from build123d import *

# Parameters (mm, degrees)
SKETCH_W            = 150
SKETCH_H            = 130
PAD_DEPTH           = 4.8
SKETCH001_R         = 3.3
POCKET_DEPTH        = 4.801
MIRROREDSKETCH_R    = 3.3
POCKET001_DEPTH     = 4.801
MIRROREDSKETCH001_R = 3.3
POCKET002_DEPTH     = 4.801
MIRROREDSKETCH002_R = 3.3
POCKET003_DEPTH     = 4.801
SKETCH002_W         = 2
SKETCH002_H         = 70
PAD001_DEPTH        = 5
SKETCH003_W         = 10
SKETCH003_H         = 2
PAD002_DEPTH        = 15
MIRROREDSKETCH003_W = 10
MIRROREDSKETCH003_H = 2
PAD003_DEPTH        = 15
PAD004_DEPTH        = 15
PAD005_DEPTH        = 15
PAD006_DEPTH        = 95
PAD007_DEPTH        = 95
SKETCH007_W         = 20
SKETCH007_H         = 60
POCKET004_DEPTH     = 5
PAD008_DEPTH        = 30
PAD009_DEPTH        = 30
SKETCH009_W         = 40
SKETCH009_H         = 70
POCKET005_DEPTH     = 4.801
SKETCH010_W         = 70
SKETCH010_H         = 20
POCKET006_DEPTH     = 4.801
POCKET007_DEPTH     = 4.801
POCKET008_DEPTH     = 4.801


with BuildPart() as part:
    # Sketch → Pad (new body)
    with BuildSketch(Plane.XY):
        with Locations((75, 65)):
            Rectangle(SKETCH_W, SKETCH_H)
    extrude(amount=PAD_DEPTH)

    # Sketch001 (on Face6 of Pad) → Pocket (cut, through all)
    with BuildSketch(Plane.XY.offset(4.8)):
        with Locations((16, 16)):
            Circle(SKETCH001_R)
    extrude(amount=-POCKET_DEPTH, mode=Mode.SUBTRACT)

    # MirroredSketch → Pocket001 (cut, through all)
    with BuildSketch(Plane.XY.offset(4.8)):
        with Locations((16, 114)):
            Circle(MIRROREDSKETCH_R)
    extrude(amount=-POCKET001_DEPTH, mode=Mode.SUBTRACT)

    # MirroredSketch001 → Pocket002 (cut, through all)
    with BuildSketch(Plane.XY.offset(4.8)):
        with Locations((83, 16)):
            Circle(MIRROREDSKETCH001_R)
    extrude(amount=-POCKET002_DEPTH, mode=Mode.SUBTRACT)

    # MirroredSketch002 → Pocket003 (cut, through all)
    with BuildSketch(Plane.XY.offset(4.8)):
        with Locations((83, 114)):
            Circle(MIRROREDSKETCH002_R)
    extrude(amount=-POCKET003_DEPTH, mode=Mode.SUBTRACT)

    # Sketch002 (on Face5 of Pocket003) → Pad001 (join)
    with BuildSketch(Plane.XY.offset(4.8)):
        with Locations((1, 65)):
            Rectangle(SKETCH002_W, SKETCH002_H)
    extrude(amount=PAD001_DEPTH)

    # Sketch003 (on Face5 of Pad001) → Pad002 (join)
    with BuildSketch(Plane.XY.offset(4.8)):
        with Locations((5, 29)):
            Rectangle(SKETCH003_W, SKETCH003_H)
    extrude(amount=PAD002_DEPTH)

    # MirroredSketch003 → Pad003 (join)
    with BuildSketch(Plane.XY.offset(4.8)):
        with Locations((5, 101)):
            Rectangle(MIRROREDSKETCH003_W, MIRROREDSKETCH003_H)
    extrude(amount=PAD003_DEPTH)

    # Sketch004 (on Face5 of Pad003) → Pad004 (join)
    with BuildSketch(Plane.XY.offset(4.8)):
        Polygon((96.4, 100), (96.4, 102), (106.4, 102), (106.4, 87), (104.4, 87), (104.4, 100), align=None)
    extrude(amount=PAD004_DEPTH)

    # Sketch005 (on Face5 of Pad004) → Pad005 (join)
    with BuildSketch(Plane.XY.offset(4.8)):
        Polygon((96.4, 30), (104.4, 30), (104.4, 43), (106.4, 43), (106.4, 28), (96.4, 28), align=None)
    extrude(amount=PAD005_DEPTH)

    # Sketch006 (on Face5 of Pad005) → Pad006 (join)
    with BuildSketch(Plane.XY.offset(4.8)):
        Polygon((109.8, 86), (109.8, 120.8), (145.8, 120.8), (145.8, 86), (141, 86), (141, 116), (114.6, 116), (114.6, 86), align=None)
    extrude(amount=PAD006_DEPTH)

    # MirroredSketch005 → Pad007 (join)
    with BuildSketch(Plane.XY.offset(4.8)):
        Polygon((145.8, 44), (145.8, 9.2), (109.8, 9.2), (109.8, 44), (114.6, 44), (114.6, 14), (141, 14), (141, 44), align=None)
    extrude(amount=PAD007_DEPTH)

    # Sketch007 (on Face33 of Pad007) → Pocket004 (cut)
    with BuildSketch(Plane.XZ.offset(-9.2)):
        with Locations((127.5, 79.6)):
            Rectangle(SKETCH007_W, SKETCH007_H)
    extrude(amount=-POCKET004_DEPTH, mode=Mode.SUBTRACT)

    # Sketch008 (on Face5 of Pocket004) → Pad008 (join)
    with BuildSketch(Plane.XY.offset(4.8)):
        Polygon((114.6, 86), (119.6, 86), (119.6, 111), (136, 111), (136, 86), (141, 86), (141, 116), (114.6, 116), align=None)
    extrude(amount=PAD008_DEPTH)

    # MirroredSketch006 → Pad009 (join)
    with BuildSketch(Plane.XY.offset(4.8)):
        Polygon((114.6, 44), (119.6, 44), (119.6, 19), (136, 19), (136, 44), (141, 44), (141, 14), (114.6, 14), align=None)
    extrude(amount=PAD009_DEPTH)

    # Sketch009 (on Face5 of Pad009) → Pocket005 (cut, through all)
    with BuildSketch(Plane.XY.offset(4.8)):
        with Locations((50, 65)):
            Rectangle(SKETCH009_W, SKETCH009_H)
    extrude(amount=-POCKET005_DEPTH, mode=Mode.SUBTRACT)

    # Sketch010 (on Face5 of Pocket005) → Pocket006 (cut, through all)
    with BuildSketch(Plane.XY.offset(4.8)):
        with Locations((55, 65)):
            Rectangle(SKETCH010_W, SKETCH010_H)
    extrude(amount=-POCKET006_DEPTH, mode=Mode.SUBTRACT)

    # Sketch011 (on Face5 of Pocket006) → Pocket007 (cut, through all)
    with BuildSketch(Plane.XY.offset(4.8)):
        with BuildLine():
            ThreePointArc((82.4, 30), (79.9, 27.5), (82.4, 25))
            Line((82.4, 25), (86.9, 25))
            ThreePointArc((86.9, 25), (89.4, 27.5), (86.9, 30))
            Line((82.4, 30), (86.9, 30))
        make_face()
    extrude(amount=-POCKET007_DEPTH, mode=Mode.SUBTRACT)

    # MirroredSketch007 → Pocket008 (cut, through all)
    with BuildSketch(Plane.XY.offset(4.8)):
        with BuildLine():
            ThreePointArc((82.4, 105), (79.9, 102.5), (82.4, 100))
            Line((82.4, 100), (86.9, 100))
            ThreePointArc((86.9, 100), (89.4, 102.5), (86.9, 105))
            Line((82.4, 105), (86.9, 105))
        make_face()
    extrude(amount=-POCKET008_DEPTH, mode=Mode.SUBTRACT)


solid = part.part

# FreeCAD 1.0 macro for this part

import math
import FreeCAD as App
import Part
import Sketcher
from FreeCAD import Vector
Q = App.Units.Quantity

doc = App.newDocument("Part")
body = doc.addObject("PartDesign::Body", "Body")

sketch1 = doc.addObject("Sketcher::SketchObject", "Sketch")
body.addObject(sketch1)
sketch1.AttachmentSupport = (doc.XY_Plane, [""])
sketch1.MapMode = "FlatFace"
sketch1.addGeometry(Part.LineSegment(Vector(0, 130, 0), Vector(0, 0, 0)), False)
sketch1.addGeometry(Part.LineSegment(Vector(0, 0, 0), Vector(150, 0, 0)), False)
sketch1.addGeometry(Part.LineSegment(Vector(150, 0, 0), Vector(150, 130, 0)), False)
sketch1.addGeometry(Part.LineSegment(Vector(150, 130, 0), Vector(0, 130, 0)), False)
sketch1.addConstraint(Sketcher.Constraint("Coincident", 0, 2, 1, 1))
sketch1.addConstraint(Sketcher.Constraint("Coincident", 1, 2, 2, 1))
sketch1.addConstraint(Sketcher.Constraint("Coincident", 2, 2, 3, 1))
sketch1.addConstraint(Sketcher.Constraint("Coincident", 3, 2, 0, 1))
sketch1.addConstraint(Sketcher.Constraint("Vertical", 0))
sketch1.addConstraint(Sketcher.Constraint("Horizontal", 1))
sketch1.addConstraint(Sketcher.Constraint("Vertical", 2))
sketch1.addConstraint(Sketcher.Constraint("Horizontal", 3))
sketch1.addConstraint(Sketcher.Constraint("Coincident", 0, 2, -1, 1))
sketch1.addConstraint(Sketcher.Constraint("DistanceX", 1, 1, 1, 2, Q("150 mm")))
sketch1.addConstraint(Sketcher.Constraint("DistanceY", 0, 2, 0, 1, Q("130 mm")))
pad1 = doc.addObject("PartDesign::Pad", "Pad")
body.addObject(pad1)
pad1.Profile = sketch1
pad1.Length = 4.8

sketch2 = doc.addObject("Sketcher::SketchObject", "Sketch001")
body.addObject(sketch2)
sketch2.AttachmentSupport = (doc.XY_Plane, [""])
sketch2.MapMode = "FlatFace"
sketch2.AttachmentOffset = App.Placement(Vector(0, 0, 4.8), App.Rotation())
sketch2.addGeometry(Part.Circle(Vector(16, 16, 0), Vector(0, 0, 1), 3.3), False)
sketch2.addConstraint(Sketcher.Constraint("Diameter", 0, Q("6.6 mm")))
sketch2.addConstraint(Sketcher.Constraint("DistanceX", -1, 1, 0, 3, Q("16 mm")))
sketch2.addConstraint(Sketcher.Constraint("DistanceY", -1, 1, 0, 3, Q("16 mm")))
pocket1 = doc.addObject("PartDesign::Pocket", "Pocket")
body.addObject(pocket1)
pocket1.Profile = sketch2
pocket1.Type = "ThroughAll"

sketch3 = doc.addObject("Sketcher::SketchObject", "Sketch002")
body.addObject(sketch3)
sketch3.AttachmentSupport = (doc.XY_Plane, [""])
sketch3.MapMode = "FlatFace"
sketch3.AttachmentOffset = App.Placement(Vector(0, 0, 4.8), App.Rotation())
sketch3.addGeometry(Part.Circle(Vector(16, 114, 0), Vector(0, 0, 1), 3.3), False)
sketch3.addConstraint(Sketcher.Constraint("Diameter", 0, Q("6.6 mm")))
sketch3.addConstraint(Sketcher.Constraint("DistanceX", -1, 1, 0, 3, Q("16 mm")))
sketch3.addConstraint(Sketcher.Constraint("DistanceY", -1, 1, 0, 3, Q("114 mm")))
pocket2 = doc.addObject("PartDesign::Pocket", "Pocket001")
body.addObject(pocket2)
pocket2.Profile = sketch3
pocket2.Type = "ThroughAll"

sketch4 = doc.addObject("Sketcher::SketchObject", "Sketch003")
body.addObject(sketch4)
sketch4.AttachmentSupport = (doc.XY_Plane, [""])
sketch4.MapMode = "FlatFace"
sketch4.AttachmentOffset = App.Placement(Vector(0, 0, 4.8), App.Rotation())
sketch4.addGeometry(Part.Circle(Vector(83, 16, 0), Vector(0, 0, 1), 3.3), False)
sketch4.addConstraint(Sketcher.Constraint("Diameter", 0, Q("6.6 mm")))
sketch4.addConstraint(Sketcher.Constraint("DistanceX", -1, 1, 0, 3, Q("83 mm")))
sketch4.addConstraint(Sketcher.Constraint("DistanceY", -1, 1, 0, 3, Q("16 mm")))
pocket3 = doc.addObject("PartDesign::Pocket", "Pocket002")
body.addObject(pocket3)
pocket3.Profile = sketch4
pocket3.Type = "ThroughAll"

sketch5 = doc.addObject("Sketcher::SketchObject", "Sketch004")
body.addObject(sketch5)
sketch5.AttachmentSupport = (doc.XY_Plane, [""])
sketch5.MapMode = "FlatFace"
sketch5.AttachmentOffset = App.Placement(Vector(0, 0, 4.8), App.Rotation())
sketch5.addGeometry(Part.Circle(Vector(83, 114, 0), Vector(0, 0, 1), 3.3), False)
sketch5.addConstraint(Sketcher.Constraint("Diameter", 0, Q("6.6 mm")))
sketch5.addConstraint(Sketcher.Constraint("DistanceX", -1, 1, 0, 3, Q("83 mm")))
sketch5.addConstraint(Sketcher.Constraint("DistanceY", -1, 1, 0, 3, Q("114 mm")))
pocket4 = doc.addObject("PartDesign::Pocket", "Pocket003")
body.addObject(pocket4)
pocket4.Profile = sketch5
pocket4.Type = "ThroughAll"

sketch6 = doc.addObject("Sketcher::SketchObject", "Sketch005")
body.addObject(sketch6)
sketch6.AttachmentSupport = (doc.XY_Plane, [""])
sketch6.MapMode = "FlatFace"
sketch6.AttachmentOffset = App.Placement(Vector(0, 0, 4.8), App.Rotation())
sketch6.addGeometry(Part.LineSegment(Vector(0, 100, 0), Vector(0, 30, 0)), False)
sketch6.addGeometry(Part.LineSegment(Vector(0, 30, 0), Vector(2, 30, 0)), False)
sketch6.addGeometry(Part.LineSegment(Vector(2, 30, 0), Vector(2, 100, 0)), False)
sketch6.addGeometry(Part.LineSegment(Vector(2, 100, 0), Vector(0, 100, 0)), False)
sketch6.addConstraint(Sketcher.Constraint("Coincident", 0, 2, 1, 1))
sketch6.addConstraint(Sketcher.Constraint("Coincident", 1, 2, 2, 1))
sketch6.addConstraint(Sketcher.Constraint("Coincident", 2, 2, 3, 1))
sketch6.addConstraint(Sketcher.Constraint("Coincident", 3, 2, 0, 1))
sketch6.addConstraint(Sketcher.Constraint("Vertical", 0))
sketch6.addConstraint(Sketcher.Constraint("Horizontal", 1))
sketch6.addConstraint(Sketcher.Constraint("Vertical", 2))
sketch6.addConstraint(Sketcher.Constraint("Horizontal", 3))
sketch6.addConstraint(Sketcher.Constraint("PointOnObject", 0, 2, -2))
sketch6.addConstraint(Sketcher.Constraint("DistanceX", 1, 1, 1, 2, Q("2 mm")))
sketch6.addConstraint(Sketcher.Constraint("DistanceY", 0, 2, 0, 1, Q("70 mm")))
sketch6.addConstraint(Sketcher.Constraint("DistanceY", -1, 1, 0, 2, Q("30 mm")))
pad2 = doc.addObject("PartDesign::Pad", "Pad001")
body.addObject(pad2)
pad2.Profile = sketch6
pad2.Length = 5

sketch7 = doc.addObject("Sketcher::SketchObject", "Sketch006")
body.addObject(sketch7)
sketch7.AttachmentSupport = (doc.XY_Plane, [""])
sketch7.MapMode = "FlatFace"
sketch7.AttachmentOffset = App.Placement(Vector(0, 0, 4.8), App.Rotation())
sketch7.addGeometry(Part.LineSegment(Vector(0, 30, 0), Vector(0, 28, 0)), False)
sketch7.addGeometry(Part.LineSegment(Vector(0, 28, 0), Vector(10, 28, 0)), False)
sketch7.addGeometry(Part.LineSegment(Vector(10, 28, 0), Vector(10, 30, 0)), False)
sketch7.addGeometry(Part.LineSegment(Vector(10, 30, 0), Vector(0, 30, 0)), False)
sketch7.addConstraint(Sketcher.Constraint("Coincident", 0, 2, 1, 1))
sketch7.addConstraint(Sketcher.Constraint("Coincident", 1, 2, 2, 1))
sketch7.addConstraint(Sketcher.Constraint("Coincident", 2, 2, 3, 1))
sketch7.addConstraint(Sketcher.Constraint("Coincident", 3, 2, 0, 1))
sketch7.addConstraint(Sketcher.Constraint("Vertical", 0))
sketch7.addConstraint(Sketcher.Constraint("Horizontal", 1))
sketch7.addConstraint(Sketcher.Constraint("Vertical", 2))
sketch7.addConstraint(Sketcher.Constraint("Horizontal", 3))
sketch7.addConstraint(Sketcher.Constraint("PointOnObject", 0, 2, -2))
sketch7.addConstraint(Sketcher.Constraint("DistanceX", 1, 1, 1, 2, Q("10 mm")))
sketch7.addConstraint(Sketcher.Constraint("DistanceY", 0, 2, 0, 1, Q("2 mm")))
sketch7.addConstraint(Sketcher.Constraint("DistanceY", -1, 1, 0, 2, Q("28 mm")))
pad3 = doc.addObject("PartDesign::Pad", "Pad002")
body.addObject(pad3)
pad3.Profile = sketch7
pad3.Length = 15

sketch8 = doc.addObject("Sketcher::SketchObject", "Sketch007")
body.addObject(sketch8)
sketch8.AttachmentSupport = (doc.XY_Plane, [""])
sketch8.MapMode = "FlatFace"
sketch8.AttachmentOffset = App.Placement(Vector(0, 0, 4.8), App.Rotation())
sketch8.addGeometry(Part.LineSegment(Vector(0, 102, 0), Vector(0, 100, 0)), False)
sketch8.addGeometry(Part.LineSegment(Vector(0, 100, 0), Vector(10, 100, 0)), False)
sketch8.addGeometry(Part.LineSegment(Vector(10, 100, 0), Vector(10, 102, 0)), False)
sketch8.addGeometry(Part.LineSegment(Vector(10, 102, 0), Vector(0, 102, 0)), False)
sketch8.addConstraint(Sketcher.Constraint("Coincident", 0, 2, 1, 1))
sketch8.addConstraint(Sketcher.Constraint("Coincident", 1, 2, 2, 1))
sketch8.addConstraint(Sketcher.Constraint("Coincident", 2, 2, 3, 1))
sketch8.addConstraint(Sketcher.Constraint("Coincident", 3, 2, 0, 1))
sketch8.addConstraint(Sketcher.Constraint("Vertical", 0))
sketch8.addConstraint(Sketcher.Constraint("Horizontal", 1))
sketch8.addConstraint(Sketcher.Constraint("Vertical", 2))
sketch8.addConstraint(Sketcher.Constraint("Horizontal", 3))
sketch8.addConstraint(Sketcher.Constraint("PointOnObject", 0, 2, -2))
sketch8.addConstraint(Sketcher.Constraint("DistanceX", 1, 1, 1, 2, Q("10 mm")))
sketch8.addConstraint(Sketcher.Constraint("DistanceY", 0, 2, 0, 1, Q("2 mm")))
sketch8.addConstraint(Sketcher.Constraint("DistanceY", -1, 1, 0, 2, Q("100 mm")))
pad4 = doc.addObject("PartDesign::Pad", "Pad003")
body.addObject(pad4)
pad4.Profile = sketch8
pad4.Length = 15

sketch9 = doc.addObject("Sketcher::SketchObject", "Sketch008")
body.addObject(sketch9)
sketch9.AttachmentSupport = (doc.XY_Plane, [""])
sketch9.MapMode = "FlatFace"
sketch9.AttachmentOffset = App.Placement(Vector(0, 0, 4.8), App.Rotation())
sketch9.addGeometry(Part.LineSegment(Vector(96.4, 102, 0), Vector(96.4, 100, 0)), False)
sketch9.addGeometry(Part.LineSegment(Vector(96.4, 100, 0), Vector(104.4, 100, 0)), False)
sketch9.addGeometry(Part.LineSegment(Vector(104.4, 100, 0), Vector(104.4, 87, 0)), False)
sketch9.addGeometry(Part.LineSegment(Vector(104.4, 87, 0), Vector(106.4, 87, 0)), False)
sketch9.addGeometry(Part.LineSegment(Vector(106.4, 87, 0), Vector(106.4, 102, 0)), False)
sketch9.addGeometry(Part.LineSegment(Vector(106.4, 102, 0), Vector(96.4, 102, 0)), False)
sketch9.addConstraint(Sketcher.Constraint("Coincident", 0, 2, 1, 1))
sketch9.addConstraint(Sketcher.Constraint("Coincident", 1, 2, 2, 1))
sketch9.addConstraint(Sketcher.Constraint("Coincident", 2, 2, 3, 1))
sketch9.addConstraint(Sketcher.Constraint("Coincident", 3, 2, 4, 1))
sketch9.addConstraint(Sketcher.Constraint("Coincident", 4, 2, 5, 1))
sketch9.addConstraint(Sketcher.Constraint("Coincident", 5, 2, 0, 1))
sketch9.addConstraint(Sketcher.Constraint("Vertical", 0))
sketch9.addConstraint(Sketcher.Constraint("Horizontal", 1))
sketch9.addConstraint(Sketcher.Constraint("Vertical", 2))
sketch9.addConstraint(Sketcher.Constraint("Horizontal", 3))
sketch9.addConstraint(Sketcher.Constraint("Vertical", 4))
sketch9.addConstraint(Sketcher.Constraint("Horizontal", 5))
sketch9.addConstraint(Sketcher.Constraint("Equal", 3, 0))
sketch9.addConstraint(Sketcher.Constraint("DistanceX", 1, 1, 1, 2, Q("8 mm")))
sketch9.addConstraint(Sketcher.Constraint("DistanceX", 3, 1, 3, 2, Q("2 mm")))
sketch9.addConstraint(Sketcher.Constraint("DistanceY", 2, 2, 2, 1, Q("13 mm")))
sketch9.addConstraint(Sketcher.Constraint("DistanceY", -1, 1, 0, 2, Q("100 mm")))
sketch9.addConstraint(Sketcher.Constraint("DistanceX", -1, 1, 0, 2, Q("96.4 mm")))
pad5 = doc.addObject("PartDesign::Pad", "Pad004")
body.addObject(pad5)
pad5.Profile = sketch9
pad5.Length = 15

sketch10 = doc.addObject("Sketcher::SketchObject", "Sketch009")
body.addObject(sketch10)
sketch10.AttachmentSupport = (doc.XY_Plane, [""])
sketch10.MapMode = "FlatFace"
sketch10.AttachmentOffset = App.Placement(Vector(0, 0, 4.8), App.Rotation())
sketch10.addGeometry(Part.LineSegment(Vector(104.4, 30, 0), Vector(96.4, 30, 0)), False)
sketch10.addGeometry(Part.LineSegment(Vector(96.4, 30, 0), Vector(96.4, 28, 0)), False)
sketch10.addGeometry(Part.LineSegment(Vector(96.4, 28, 0), Vector(106.4, 28, 0)), False)
sketch10.addGeometry(Part.LineSegment(Vector(106.4, 28, 0), Vector(106.4, 43, 0)), False)
sketch10.addGeometry(Part.LineSegment(Vector(106.4, 43, 0), Vector(104.4, 43, 0)), False)
sketch10.addGeometry(Part.LineSegment(Vector(104.4, 43, 0), Vector(104.4, 30, 0)), False)
sketch10.addConstraint(Sketcher.Constraint("Coincident", 0, 2, 1, 1))
sketch10.addConstraint(Sketcher.Constraint("Coincident", 1, 2, 2, 1))
sketch10.addConstraint(Sketcher.Constraint("Coincident", 2, 2, 3, 1))
sketch10.addConstraint(Sketcher.Constraint("Coincident", 3, 2, 4, 1))
sketch10.addConstraint(Sketcher.Constraint("Coincident", 4, 2, 5, 1))
sketch10.addConstraint(Sketcher.Constraint("Coincident", 5, 2, 0, 1))
sketch10.addConstraint(Sketcher.Constraint("Horizontal", 0))
sketch10.addConstraint(Sketcher.Constraint("Vertical", 1))
sketch10.addConstraint(Sketcher.Constraint("Horizontal", 2))
sketch10.addConstraint(Sketcher.Constraint("Vertical", 3))
sketch10.addConstraint(Sketcher.Constraint("Horizontal", 4))
sketch10.addConstraint(Sketcher.Constraint("Vertical", 5))
sketch10.addConstraint(Sketcher.Constraint("Equal", 4, 1))
sketch10.addConstraint(Sketcher.Constraint("DistanceX", 0, 2, 0, 1, Q("8 mm")))
sketch10.addConstraint(Sketcher.Constraint("DistanceX", 2, 1, 2, 2, Q("10 mm")))
sketch10.addConstraint(Sketcher.Constraint("DistanceY", 3, 1, 3, 2, Q("15 mm")))
sketch10.addConstraint(Sketcher.Constraint("DistanceY", -1, 1, 0, 2, Q("30 mm")))
sketch10.addConstraint(Sketcher.Constraint("DistanceX", -1, 1, 0, 2, Q("96.4 mm")))
pad6 = doc.addObject("PartDesign::Pad", "Pad005")
body.addObject(pad6)
pad6.Profile = sketch10
pad6.Length = 15

sketch11 = doc.addObject("Sketcher::SketchObject", "Sketch010")
body.addObject(sketch11)
sketch11.AttachmentSupport = (doc.XY_Plane, [""])
sketch11.MapMode = "FlatFace"
sketch11.AttachmentOffset = App.Placement(Vector(0, 0, 4.8), App.Rotation())
sketch11.addGeometry(Part.LineSegment(Vector(109.8, 120.8, 0), Vector(109.8, 86, 0)), False)
sketch11.addGeometry(Part.LineSegment(Vector(109.8, 86, 0), Vector(114.6, 86, 0)), False)
sketch11.addGeometry(Part.LineSegment(Vector(114.6, 86, 0), Vector(114.6, 116, 0)), False)
sketch11.addGeometry(Part.LineSegment(Vector(114.6, 116, 0), Vector(141, 116, 0)), False)
sketch11.addGeometry(Part.LineSegment(Vector(141, 116, 0), Vector(141, 86, 0)), False)
sketch11.addGeometry(Part.LineSegment(Vector(141, 86, 0), Vector(145.8, 86, 0)), False)
sketch11.addGeometry(Part.LineSegment(Vector(145.8, 86, 0), Vector(145.8, 120.8, 0)), False)
sketch11.addGeometry(Part.LineSegment(Vector(145.8, 120.8, 0), Vector(109.8, 120.8, 0)), False)
sketch11.addConstraint(Sketcher.Constraint("Coincident", 0, 2, 1, 1))
sketch11.addConstraint(Sketcher.Constraint("Coincident", 1, 2, 2, 1))
sketch11.addConstraint(Sketcher.Constraint("Coincident", 2, 2, 3, 1))
sketch11.addConstraint(Sketcher.Constraint("Coincident", 3, 2, 4, 1))
sketch11.addConstraint(Sketcher.Constraint("Coincident", 4, 2, 5, 1))
sketch11.addConstraint(Sketcher.Constraint("Coincident", 5, 2, 6, 1))
sketch11.addConstraint(Sketcher.Constraint("Coincident", 6, 2, 7, 1))
sketch11.addConstraint(Sketcher.Constraint("Coincident", 7, 2, 0, 1))
sketch11.addConstraint(Sketcher.Constraint("Vertical", 0))
sketch11.addConstraint(Sketcher.Constraint("Horizontal", 1))
sketch11.addConstraint(Sketcher.Constraint("Vertical", 2))
sketch11.addConstraint(Sketcher.Constraint("Horizontal", 3))
sketch11.addConstraint(Sketcher.Constraint("Vertical", 4))
sketch11.addConstraint(Sketcher.Constraint("Horizontal", 5))
sketch11.addConstraint(Sketcher.Constraint("Vertical", 6))
sketch11.addConstraint(Sketcher.Constraint("Horizontal", 7))
sketch11.addConstraint(Sketcher.Constraint("Horizontal", 1, 2, 4, 2))
sketch11.addConstraint(Sketcher.Constraint("Equal", 1, 5))
sketch11.addConstraint(Sketcher.Constraint("DistanceX", 7, 2, 7, 1, Q("36 mm")))
sketch11.addConstraint(Sketcher.Constraint("DistanceY", 2, 1, 2, 2, Q("30 mm")))
sketch11.addConstraint(Sketcher.Constraint("DistanceX", 1, 1, 1, 2, Q("4.8 mm")))
sketch11.addConstraint(Sketcher.Constraint("DistanceY", 0, 2, 0, 1, Q("34.8 mm")))
sketch11.addConstraint(Sketcher.Constraint("DistanceY", -1, 1, 0, 2, Q("86 mm")))
sketch11.addConstraint(Sketcher.Constraint("DistanceX", -1, 1, 3, 2, Q("141 mm")))
pad7 = doc.addObject("PartDesign::Pad", "Pad006")
body.addObject(pad7)
pad7.Profile = sketch11
pad7.Length = 95

sketch12 = doc.addObject("Sketcher::SketchObject", "Sketch011")
body.addObject(sketch12)
sketch12.AttachmentSupport = (doc.XY_Plane, [""])
sketch12.MapMode = "FlatFace"
sketch12.AttachmentOffset = App.Placement(Vector(0, 0, 4.8), App.Rotation())
sketch12.addGeometry(Part.LineSegment(Vector(145.8, 9.2, 0), Vector(145.8, 44, 0)), False)
sketch12.addGeometry(Part.LineSegment(Vector(145.8, 44, 0), Vector(141, 44, 0)), False)
sketch12.addGeometry(Part.LineSegment(Vector(141, 44, 0), Vector(141, 14, 0)), False)
sketch12.addGeometry(Part.LineSegment(Vector(141, 14, 0), Vector(114.6, 14, 0)), False)
sketch12.addGeometry(Part.LineSegment(Vector(114.6, 14, 0), Vector(114.6, 44, 0)), False)
sketch12.addGeometry(Part.LineSegment(Vector(114.6, 44, 0), Vector(109.8, 44, 0)), False)
sketch12.addGeometry(Part.LineSegment(Vector(109.8, 44, 0), Vector(109.8, 9.2, 0)), False)
sketch12.addGeometry(Part.LineSegment(Vector(109.8, 9.2, 0), Vector(145.8, 9.2, 0)), False)
sketch12.addConstraint(Sketcher.Constraint("Coincident", 0, 2, 1, 1))
sketch12.addConstraint(Sketcher.Constraint("Coincident", 1, 2, 2, 1))
sketch12.addConstraint(Sketcher.Constraint("Coincident", 2, 2, 3, 1))
sketch12.addConstraint(Sketcher.Constraint("Coincident", 3, 2, 4, 1))
sketch12.addConstraint(Sketcher.Constraint("Coincident", 4, 2, 5, 1))
sketch12.addConstraint(Sketcher.Constraint("Coincident", 5, 2, 6, 1))
sketch12.addConstraint(Sketcher.Constraint("Coincident", 6, 2, 7, 1))
sketch12.addConstraint(Sketcher.Constraint("Coincident", 7, 2, 0, 1))
sketch12.addConstraint(Sketcher.Constraint("Vertical", 0))
sketch12.addConstraint(Sketcher.Constraint("Horizontal", 1))
sketch12.addConstraint(Sketcher.Constraint("Vertical", 2))
sketch12.addConstraint(Sketcher.Constraint("Horizontal", 3))
sketch12.addConstraint(Sketcher.Constraint("Vertical", 4))
sketch12.addConstraint(Sketcher.Constraint("Horizontal", 5))
sketch12.addConstraint(Sketcher.Constraint("Vertical", 6))
sketch12.addConstraint(Sketcher.Constraint("Horizontal", 7))
sketch12.addConstraint(Sketcher.Constraint("Horizontal", 1, 2, 4, 2))
sketch12.addConstraint(Sketcher.Constraint("Equal", 1, 5))
sketch12.addConstraint(Sketcher.Constraint("DistanceX", 7, 1, 7, 2, Q("36 mm")))
sketch12.addConstraint(Sketcher.Constraint("DistanceY", 2, 2, 2, 1, Q("30 mm")))
sketch12.addConstraint(Sketcher.Constraint("DistanceX", 1, 2, 1, 1, Q("4.8 mm")))
sketch12.addConstraint(Sketcher.Constraint("DistanceY", 0, 1, 0, 2, Q("34.8 mm")))
sketch12.addConstraint(Sketcher.Constraint("DistanceY", -1, 1, 0, 2, Q("44 mm")))
sketch12.addConstraint(Sketcher.Constraint("DistanceX", -1, 1, 1, 2, Q("141 mm")))
pad8 = doc.addObject("PartDesign::Pad", "Pad007")
body.addObject(pad8)
pad8.Profile = sketch12
pad8.Length = 95

sketch13 = doc.addObject("Sketcher::SketchObject", "Sketch012")
body.addObject(sketch13)
sketch13.AttachmentSupport = (doc.XZ_Plane, [""])
sketch13.MapMode = "FlatFace"
sketch13.AttachmentOffset = App.Placement(Vector(0, 0, -9.2), App.Rotation())
sketch13.addGeometry(Part.LineSegment(Vector(118, 110, 0), Vector(118, 50, 0)), False)
sketch13.addGeometry(Part.LineSegment(Vector(118, 50, 0), Vector(138, 50, 0)), False)
sketch13.addGeometry(Part.LineSegment(Vector(138, 50, 0), Vector(138, 110, 0)), False)
sketch13.addGeometry(Part.LineSegment(Vector(138, 110, 0), Vector(118, 110, 0)), False)
sketch13.addConstraint(Sketcher.Constraint("Coincident", 0, 2, 1, 1))
sketch13.addConstraint(Sketcher.Constraint("Coincident", 1, 2, 2, 1))
sketch13.addConstraint(Sketcher.Constraint("Coincident", 2, 2, 3, 1))
sketch13.addConstraint(Sketcher.Constraint("Coincident", 3, 2, 0, 1))
sketch13.addConstraint(Sketcher.Constraint("Vertical", 0))
sketch13.addConstraint(Sketcher.Constraint("Horizontal", 1))
sketch13.addConstraint(Sketcher.Constraint("Vertical", 2))
sketch13.addConstraint(Sketcher.Constraint("Horizontal", 3))
sketch13.addConstraint(Sketcher.Constraint("DistanceX", 1, 1, 1, 2, Q("20 mm")))
sketch13.addConstraint(Sketcher.Constraint("DistanceY", 0, 2, 0, 1, Q("60 mm")))
sketch13.addConstraint(Sketcher.Constraint("DistanceX", -1, 1, 0, 2, Q("117.5 mm")))
sketch13.addConstraint(Sketcher.Constraint("DistanceY", -1, 1, 0, 2, Q("49.6 mm")))
pocket5 = doc.addObject("PartDesign::Pocket", "Pocket004")
body.addObject(pocket5)
pocket5.Profile = sketch13
pocket5.Length = 5

sketch14 = doc.addObject("Sketcher::SketchObject", "Sketch013")
body.addObject(sketch14)
sketch14.AttachmentSupport = (doc.XY_Plane, [""])
sketch14.MapMode = "FlatFace"
sketch14.AttachmentOffset = App.Placement(Vector(0, 0, 4.8), App.Rotation())
sketch14.addGeometry(Part.LineSegment(Vector(115, 86, 0), Vector(120, 86, 0)), False)
sketch14.addGeometry(Part.LineSegment(Vector(120, 86, 0), Vector(120, 111, 0)), False)
sketch14.addGeometry(Part.LineSegment(Vector(120, 111, 0), Vector(136, 111, 0)), False)
sketch14.addGeometry(Part.LineSegment(Vector(136, 111, 0), Vector(136, 86, 0)), False)
sketch14.addGeometry(Part.LineSegment(Vector(136, 86, 0), Vector(141, 86, 0)), False)
sketch14.addGeometry(Part.LineSegment(Vector(141, 86, 0), Vector(141, 116, 0)), False)
sketch14.addGeometry(Part.LineSegment(Vector(141, 116, 0), Vector(115, 116, 0)), False)
sketch14.addGeometry(Part.LineSegment(Vector(115, 116, 0), Vector(115, 86, 0)), False)
sketch14.addConstraint(Sketcher.Constraint("Coincident", 0, 2, 1, 1))
sketch14.addConstraint(Sketcher.Constraint("Coincident", 1, 2, 2, 1))
sketch14.addConstraint(Sketcher.Constraint("Coincident", 2, 2, 3, 1))
sketch14.addConstraint(Sketcher.Constraint("Coincident", 3, 2, 4, 1))
sketch14.addConstraint(Sketcher.Constraint("Coincident", 4, 2, 5, 1))
sketch14.addConstraint(Sketcher.Constraint("Coincident", 5, 2, 6, 1))
sketch14.addConstraint(Sketcher.Constraint("Coincident", 6, 2, 7, 1))
sketch14.addConstraint(Sketcher.Constraint("Coincident", 7, 2, 0, 1))
sketch14.addConstraint(Sketcher.Constraint("Horizontal", 0))
sketch14.addConstraint(Sketcher.Constraint("Vertical", 1))
sketch14.addConstraint(Sketcher.Constraint("Horizontal", 2))
sketch14.addConstraint(Sketcher.Constraint("Vertical", 3))
sketch14.addConstraint(Sketcher.Constraint("Horizontal", 4))
sketch14.addConstraint(Sketcher.Constraint("Vertical", 5))
sketch14.addConstraint(Sketcher.Constraint("Horizontal", 6))
sketch14.addConstraint(Sketcher.Constraint("Vertical", 7))
sketch14.addConstraint(Sketcher.Constraint("Horizontal", 0, 2, 3, 2))
sketch14.addConstraint(Sketcher.Constraint("Equal", 0, 4))
sketch14.addConstraint(Sketcher.Constraint("DistanceX", 0, 1, 0, 2, Q("5 mm")))
sketch14.addConstraint(Sketcher.Constraint("DistanceY", 1, 1, 1, 2, Q("25 mm")))
sketch14.addConstraint(Sketcher.Constraint("DistanceY", 5, 1, 5, 2, Q("30 mm")))
sketch14.addConstraint(Sketcher.Constraint("DistanceX", 2, 1, 2, 2, Q("16.4 mm")))
sketch14.addConstraint(Sketcher.Constraint("DistanceY", -1, 1, 0, 2, Q("86 mm")))
sketch14.addConstraint(Sketcher.Constraint("DistanceX", -1, 1, 2, 2, Q("136 mm")))
pad9 = doc.addObject("PartDesign::Pad", "Pad008")
body.addObject(pad9)
pad9.Profile = sketch14
pad9.Length = 30

sketch15 = doc.addObject("Sketcher::SketchObject", "Sketch014")
body.addObject(sketch15)
sketch15.AttachmentSupport = (doc.XY_Plane, [""])
sketch15.MapMode = "FlatFace"
sketch15.AttachmentOffset = App.Placement(Vector(0, 0, 4.8), App.Rotation())
sketch15.addGeometry(Part.LineSegment(Vector(120, 44, 0), Vector(115, 44, 0)), False)
sketch15.addGeometry(Part.LineSegment(Vector(115, 44, 0), Vector(115, 14, 0)), False)
sketch15.addGeometry(Part.LineSegment(Vector(115, 14, 0), Vector(141, 14, 0)), False)
sketch15.addGeometry(Part.LineSegment(Vector(141, 14, 0), Vector(141, 44, 0)), False)
sketch15.addGeometry(Part.LineSegment(Vector(141, 44, 0), Vector(136, 44, 0)), False)
sketch15.addGeometry(Part.LineSegment(Vector(136, 44, 0), Vector(136, 19, 0)), False)
sketch15.addGeometry(Part.LineSegment(Vector(136, 19, 0), Vector(120, 19, 0)), False)
sketch15.addGeometry(Part.LineSegment(Vector(120, 19, 0), Vector(120, 44, 0)), False)
sketch15.addConstraint(Sketcher.Constraint("Coincident", 0, 2, 1, 1))
sketch15.addConstraint(Sketcher.Constraint("Coincident", 1, 2, 2, 1))
sketch15.addConstraint(Sketcher.Constraint("Coincident", 2, 2, 3, 1))
sketch15.addConstraint(Sketcher.Constraint("Coincident", 3, 2, 4, 1))
sketch15.addConstraint(Sketcher.Constraint("Coincident", 4, 2, 5, 1))
sketch15.addConstraint(Sketcher.Constraint("Coincident", 5, 2, 6, 1))
sketch15.addConstraint(Sketcher.Constraint("Coincident", 6, 2, 7, 1))
sketch15.addConstraint(Sketcher.Constraint("Coincident", 7, 2, 0, 1))
sketch15.addConstraint(Sketcher.Constraint("Horizontal", 0))
sketch15.addConstraint(Sketcher.Constraint("Vertical", 1))
sketch15.addConstraint(Sketcher.Constraint("Horizontal", 2))
sketch15.addConstraint(Sketcher.Constraint("Vertical", 3))
sketch15.addConstraint(Sketcher.Constraint("Horizontal", 4))
sketch15.addConstraint(Sketcher.Constraint("Vertical", 5))
sketch15.addConstraint(Sketcher.Constraint("Horizontal", 6))
sketch15.addConstraint(Sketcher.Constraint("Vertical", 7))
sketch15.addConstraint(Sketcher.Constraint("Horizontal", 0, 2, 3, 2))
sketch15.addConstraint(Sketcher.Constraint("Equal", 0, 4))
sketch15.addConstraint(Sketcher.Constraint("DistanceX", 0, 2, 0, 1, Q("5 mm")))
sketch15.addConstraint(Sketcher.Constraint("DistanceY", 1, 2, 1, 1, Q("30 mm")))
sketch15.addConstraint(Sketcher.Constraint("DistanceY", 5, 2, 5, 1, Q("25 mm")))
sketch15.addConstraint(Sketcher.Constraint("DistanceX", 2, 1, 2, 2, Q("26.4 mm")))
sketch15.addConstraint(Sketcher.Constraint("DistanceY", -1, 1, 0, 2, Q("44 mm")))
sketch15.addConstraint(Sketcher.Constraint("DistanceX", -1, 1, 2, 2, Q("141 mm")))
pad10 = doc.addObject("PartDesign::Pad", "Pad009")
body.addObject(pad10)
pad10.Profile = sketch15
pad10.Length = 30

sketch16 = doc.addObject("Sketcher::SketchObject", "Sketch015")
body.addObject(sketch16)
sketch16.AttachmentSupport = (doc.XY_Plane, [""])
sketch16.MapMode = "FlatFace"
sketch16.AttachmentOffset = App.Placement(Vector(0, 0, 4.8), App.Rotation())
sketch16.addGeometry(Part.LineSegment(Vector(30, 100, 0), Vector(30, 30, 0)), False)
sketch16.addGeometry(Part.LineSegment(Vector(30, 30, 0), Vector(70, 30, 0)), False)
sketch16.addGeometry(Part.LineSegment(Vector(70, 30, 0), Vector(70, 100, 0)), False)
sketch16.addGeometry(Part.LineSegment(Vector(70, 100, 0), Vector(30, 100, 0)), False)
sketch16.addConstraint(Sketcher.Constraint("Coincident", 0, 2, 1, 1))
sketch16.addConstraint(Sketcher.Constraint("Coincident", 1, 2, 2, 1))
sketch16.addConstraint(Sketcher.Constraint("Coincident", 2, 2, 3, 1))
sketch16.addConstraint(Sketcher.Constraint("Coincident", 3, 2, 0, 1))
sketch16.addConstraint(Sketcher.Constraint("Vertical", 0))
sketch16.addConstraint(Sketcher.Constraint("Horizontal", 1))
sketch16.addConstraint(Sketcher.Constraint("Vertical", 2))
sketch16.addConstraint(Sketcher.Constraint("Horizontal", 3))
sketch16.addConstraint(Sketcher.Constraint("DistanceX", 1, 1, 1, 2, Q("40 mm")))
sketch16.addConstraint(Sketcher.Constraint("DistanceY", 0, 2, 0, 1, Q("70 mm")))
sketch16.addConstraint(Sketcher.Constraint("DistanceX", -1, 1, 0, 2, Q("30 mm")))
sketch16.addConstraint(Sketcher.Constraint("DistanceY", -1, 1, 0, 2, Q("30 mm")))
pocket6 = doc.addObject("PartDesign::Pocket", "Pocket005")
body.addObject(pocket6)
pocket6.Profile = sketch16
pocket6.Type = "ThroughAll"

sketch17 = doc.addObject("Sketcher::SketchObject", "Sketch016")
body.addObject(sketch17)
sketch17.AttachmentSupport = (doc.XY_Plane, [""])
sketch17.MapMode = "FlatFace"
sketch17.AttachmentOffset = App.Placement(Vector(0, 0, 4.8), App.Rotation())
sketch17.addGeometry(Part.LineSegment(Vector(20, 75, 0), Vector(20, 55, 0)), False)
sketch17.addGeometry(Part.LineSegment(Vector(20, 55, 0), Vector(90, 55, 0)), False)
sketch17.addGeometry(Part.LineSegment(Vector(90, 55, 0), Vector(90, 75, 0)), False)
sketch17.addGeometry(Part.LineSegment(Vector(90, 75, 0), Vector(20, 75, 0)), False)
sketch17.addConstraint(Sketcher.Constraint("Coincident", 0, 2, 1, 1))
sketch17.addConstraint(Sketcher.Constraint("Coincident", 1, 2, 2, 1))
sketch17.addConstraint(Sketcher.Constraint("Coincident", 2, 2, 3, 1))
sketch17.addConstraint(Sketcher.Constraint("Coincident", 3, 2, 0, 1))
sketch17.addConstraint(Sketcher.Constraint("Vertical", 0))
sketch17.addConstraint(Sketcher.Constraint("Horizontal", 1))
sketch17.addConstraint(Sketcher.Constraint("Vertical", 2))
sketch17.addConstraint(Sketcher.Constraint("Horizontal", 3))
sketch17.addConstraint(Sketcher.Constraint("DistanceX", 1, 1, 1, 2, Q("70 mm")))
sketch17.addConstraint(Sketcher.Constraint("DistanceY", 0, 2, 0, 1, Q("20 mm")))
sketch17.addConstraint(Sketcher.Constraint("DistanceX", -1, 1, 0, 2, Q("20 mm")))
sketch17.addConstraint(Sketcher.Constraint("DistanceY", -1, 1, 0, 2, Q("55 mm")))
pocket7 = doc.addObject("PartDesign::Pocket", "Pocket006")
body.addObject(pocket7)
pocket7.Profile = sketch17
pocket7.Type = "ThroughAll"

sketch18 = doc.addObject("Sketcher::SketchObject", "Sketch017")
body.addObject(sketch18)
sketch18.AttachmentSupport = (doc.XY_Plane, [""])
sketch18.MapMode = "FlatFace"
sketch18.AttachmentOffset = App.Placement(Vector(0, 0, 4.8), App.Rotation())
sketch18.addGeometry(Part.ArcOfCircle(Part.Circle(Vector(82.4, 27.5, 0), Vector(0, 0, 1), 2.5), math.radians(90), math.radians(270)), False)
sketch18.addGeometry(Part.LineSegment(Vector(82.4, 25, 0), Vector(86.9, 25, 0)), False)
sketch18.addGeometry(Part.ArcOfCircle(Part.Circle(Vector(86.9, 27.5, 0), Vector(0, 0, 1), 2.5), math.radians(-90), math.radians(90)), False)
sketch18.addGeometry(Part.LineSegment(Vector(86.9, 30, 0), Vector(82.4, 30, 0)), False)
sketch18.addConstraint(Sketcher.Constraint("Tangent", 0, 2, 1, 1))
sketch18.addConstraint(Sketcher.Constraint("Tangent", 1, 2, 2, 1))
sketch18.addConstraint(Sketcher.Constraint("Tangent", 2, 2, 3, 1))
sketch18.addConstraint(Sketcher.Constraint("Tangent", 3, 2, 0, 1))
sketch18.addConstraint(Sketcher.Constraint("Horizontal", 1))
sketch18.addConstraint(Sketcher.Constraint("Horizontal", 3))
sketch18.addConstraint(Sketcher.Constraint("Radius", 0, Q("2.5 mm")))
sketch18.addConstraint(Sketcher.Constraint("DistanceX", 1, 1, 1, 2, Q("4.5 mm")))
sketch18.addConstraint(Sketcher.Constraint("DistanceY", -1, 1, 0, 2, Q("25 mm")))
sketch18.addConstraint(Sketcher.Constraint("DistanceX", -1, 1, 0, 3, Q("82.4 mm")))
pocket8 = doc.addObject("PartDesign::Pocket", "Pocket007")
body.addObject(pocket8)
pocket8.Profile = sketch18
pocket8.Type = "ThroughAll"

sketch19 = doc.addObject("Sketcher::SketchObject", "Sketch018")
body.addObject(sketch19)
sketch19.AttachmentSupport = (doc.XY_Plane, [""])
sketch19.MapMode = "FlatFace"
sketch19.AttachmentOffset = App.Placement(Vector(0, 0, 4.8), App.Rotation())
sketch19.addGeometry(Part.ArcOfCircle(Part.Circle(Vector(82.4, 102.5, 0), Vector(0, 0, 1), 2.5), math.radians(90), math.radians(270)), False)
sketch19.addGeometry(Part.LineSegment(Vector(82.4, 100, 0), Vector(86.9, 100, 0)), False)
sketch19.addGeometry(Part.ArcOfCircle(Part.Circle(Vector(86.9, 102.5, 0), Vector(0, 0, 1), 2.5), math.radians(-90), math.radians(90)), False)
sketch19.addGeometry(Part.LineSegment(Vector(86.9, 105, 0), Vector(82.4, 105, 0)), False)
sketch19.addConstraint(Sketcher.Constraint("Tangent", 0, 2, 1, 1))
sketch19.addConstraint(Sketcher.Constraint("Tangent", 1, 2, 2, 1))
sketch19.addConstraint(Sketcher.Constraint("Tangent", 2, 2, 3, 1))
sketch19.addConstraint(Sketcher.Constraint("Tangent", 3, 2, 0, 1))
sketch19.addConstraint(Sketcher.Constraint("Horizontal", 1))
sketch19.addConstraint(Sketcher.Constraint("Horizontal", 3))
sketch19.addConstraint(Sketcher.Constraint("Radius", 0, Q("2.5 mm")))
sketch19.addConstraint(Sketcher.Constraint("DistanceX", 1, 1, 1, 2, Q("4.5 mm")))
sketch19.addConstraint(Sketcher.Constraint("DistanceY", -1, 1, 0, 2, Q("100 mm")))
sketch19.addConstraint(Sketcher.Constraint("DistanceX", -1, 1, 0, 3, Q("82.4 mm")))
pocket9 = doc.addObject("PartDesign::Pocket", "Pocket008")
body.addObject(pocket9)
pocket9.Profile = sketch19
pocket9.Type = "ThroughAll"

doc.recompute()
